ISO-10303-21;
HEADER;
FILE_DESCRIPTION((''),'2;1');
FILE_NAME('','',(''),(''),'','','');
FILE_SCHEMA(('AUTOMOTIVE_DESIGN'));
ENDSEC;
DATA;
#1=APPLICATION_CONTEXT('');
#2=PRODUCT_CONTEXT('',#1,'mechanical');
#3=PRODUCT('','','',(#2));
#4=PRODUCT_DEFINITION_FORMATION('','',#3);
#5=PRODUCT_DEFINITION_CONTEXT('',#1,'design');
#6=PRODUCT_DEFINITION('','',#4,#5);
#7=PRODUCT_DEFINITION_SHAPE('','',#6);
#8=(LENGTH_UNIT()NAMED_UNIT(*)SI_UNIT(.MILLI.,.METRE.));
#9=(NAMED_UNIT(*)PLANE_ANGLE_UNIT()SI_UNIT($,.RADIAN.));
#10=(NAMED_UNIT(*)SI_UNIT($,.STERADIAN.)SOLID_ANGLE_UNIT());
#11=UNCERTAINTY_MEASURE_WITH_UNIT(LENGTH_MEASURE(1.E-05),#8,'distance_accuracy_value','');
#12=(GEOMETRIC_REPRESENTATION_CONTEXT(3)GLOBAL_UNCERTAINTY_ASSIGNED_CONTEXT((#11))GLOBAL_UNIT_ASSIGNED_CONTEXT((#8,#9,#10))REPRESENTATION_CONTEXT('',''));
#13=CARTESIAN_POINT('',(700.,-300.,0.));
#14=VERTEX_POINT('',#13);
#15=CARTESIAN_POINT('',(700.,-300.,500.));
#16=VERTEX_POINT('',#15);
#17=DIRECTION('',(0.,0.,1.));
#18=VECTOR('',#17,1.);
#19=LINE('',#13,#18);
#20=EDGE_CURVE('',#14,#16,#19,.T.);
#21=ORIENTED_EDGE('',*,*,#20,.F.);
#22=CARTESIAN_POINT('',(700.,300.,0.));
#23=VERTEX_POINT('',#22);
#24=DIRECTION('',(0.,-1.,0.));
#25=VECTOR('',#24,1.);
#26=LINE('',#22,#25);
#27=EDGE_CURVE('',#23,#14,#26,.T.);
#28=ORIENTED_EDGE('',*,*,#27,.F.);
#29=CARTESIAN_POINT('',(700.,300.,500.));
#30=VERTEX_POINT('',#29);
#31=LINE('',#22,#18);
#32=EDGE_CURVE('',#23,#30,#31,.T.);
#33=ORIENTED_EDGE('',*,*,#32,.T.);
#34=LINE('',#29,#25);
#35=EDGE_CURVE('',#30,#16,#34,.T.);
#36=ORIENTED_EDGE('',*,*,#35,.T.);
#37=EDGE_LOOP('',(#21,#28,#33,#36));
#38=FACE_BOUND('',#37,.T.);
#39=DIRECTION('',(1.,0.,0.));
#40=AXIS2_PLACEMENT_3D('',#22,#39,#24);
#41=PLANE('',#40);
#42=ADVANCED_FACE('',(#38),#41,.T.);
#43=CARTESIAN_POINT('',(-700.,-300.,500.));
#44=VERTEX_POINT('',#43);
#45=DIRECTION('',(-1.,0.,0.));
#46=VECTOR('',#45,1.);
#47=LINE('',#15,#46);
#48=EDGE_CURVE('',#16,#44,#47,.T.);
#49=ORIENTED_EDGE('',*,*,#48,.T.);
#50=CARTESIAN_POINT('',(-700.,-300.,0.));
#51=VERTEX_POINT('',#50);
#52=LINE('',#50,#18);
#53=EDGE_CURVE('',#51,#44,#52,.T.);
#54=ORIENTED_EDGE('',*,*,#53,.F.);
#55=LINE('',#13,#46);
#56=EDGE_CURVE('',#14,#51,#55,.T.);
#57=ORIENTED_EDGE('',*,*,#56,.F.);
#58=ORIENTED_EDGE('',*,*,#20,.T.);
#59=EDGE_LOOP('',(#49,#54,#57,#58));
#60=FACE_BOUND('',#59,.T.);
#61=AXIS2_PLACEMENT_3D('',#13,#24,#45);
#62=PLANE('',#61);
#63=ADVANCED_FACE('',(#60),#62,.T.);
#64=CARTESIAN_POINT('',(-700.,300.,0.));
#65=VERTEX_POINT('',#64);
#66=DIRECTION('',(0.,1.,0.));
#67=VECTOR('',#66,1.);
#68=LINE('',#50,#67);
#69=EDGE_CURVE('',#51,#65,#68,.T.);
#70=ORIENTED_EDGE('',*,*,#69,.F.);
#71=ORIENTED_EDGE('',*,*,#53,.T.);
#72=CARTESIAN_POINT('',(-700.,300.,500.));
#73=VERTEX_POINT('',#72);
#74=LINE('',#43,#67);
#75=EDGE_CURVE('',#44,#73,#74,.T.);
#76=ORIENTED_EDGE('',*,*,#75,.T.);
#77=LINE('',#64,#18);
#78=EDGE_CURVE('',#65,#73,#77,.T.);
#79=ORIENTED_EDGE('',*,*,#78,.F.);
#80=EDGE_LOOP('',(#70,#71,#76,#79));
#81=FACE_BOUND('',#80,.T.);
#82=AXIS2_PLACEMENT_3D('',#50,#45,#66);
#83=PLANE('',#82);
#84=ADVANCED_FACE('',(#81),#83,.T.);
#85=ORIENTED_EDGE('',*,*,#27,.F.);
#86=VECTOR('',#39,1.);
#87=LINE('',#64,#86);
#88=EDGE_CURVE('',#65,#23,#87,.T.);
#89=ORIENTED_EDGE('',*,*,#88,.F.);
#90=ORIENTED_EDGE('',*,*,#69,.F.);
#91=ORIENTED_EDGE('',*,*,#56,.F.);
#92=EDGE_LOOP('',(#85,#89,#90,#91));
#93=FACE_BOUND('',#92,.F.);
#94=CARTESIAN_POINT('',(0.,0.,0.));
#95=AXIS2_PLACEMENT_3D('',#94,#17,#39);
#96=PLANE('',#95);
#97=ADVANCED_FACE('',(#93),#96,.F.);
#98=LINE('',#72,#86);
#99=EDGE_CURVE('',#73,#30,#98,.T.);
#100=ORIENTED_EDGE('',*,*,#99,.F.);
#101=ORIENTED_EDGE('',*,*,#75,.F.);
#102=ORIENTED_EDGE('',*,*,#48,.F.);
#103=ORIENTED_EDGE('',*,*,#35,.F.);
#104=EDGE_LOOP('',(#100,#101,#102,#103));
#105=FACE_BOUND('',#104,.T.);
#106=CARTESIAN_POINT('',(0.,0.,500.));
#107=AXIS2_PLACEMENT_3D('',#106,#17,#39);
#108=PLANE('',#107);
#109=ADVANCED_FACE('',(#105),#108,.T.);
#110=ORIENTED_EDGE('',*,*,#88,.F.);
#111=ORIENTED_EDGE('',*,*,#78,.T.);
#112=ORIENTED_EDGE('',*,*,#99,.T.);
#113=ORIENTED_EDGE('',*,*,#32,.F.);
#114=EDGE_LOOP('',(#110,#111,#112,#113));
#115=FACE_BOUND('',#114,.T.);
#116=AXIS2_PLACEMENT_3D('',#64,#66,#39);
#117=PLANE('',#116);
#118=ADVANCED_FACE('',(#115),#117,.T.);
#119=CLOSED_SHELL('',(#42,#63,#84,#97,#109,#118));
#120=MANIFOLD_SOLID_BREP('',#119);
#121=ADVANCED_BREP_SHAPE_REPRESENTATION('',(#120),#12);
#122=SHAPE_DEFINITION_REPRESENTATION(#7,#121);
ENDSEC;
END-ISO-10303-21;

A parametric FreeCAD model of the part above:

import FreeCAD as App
import Part
import Sketcher
from FreeCAD import Vector
Q = App.Units.Quantity

doc = App.newDocument("Part")
body = doc.addObject("PartDesign::Body", "Body")

sketch1 = body.newObject("Sketcher::SketchObject", "Sketch")
sketch1.AttachmentSupport = (doc.getObject("XY_Plane"), [""])
sketch1.MapMode = "FlatFace"
sketch1.addGeometry([
    Part.LineSegment(Vector(700, 300, 0), Vector(-700, 300, 0)),
    Part.LineSegment(Vector(-700, 300, 0), Vector(-700, -300, 0)),
    Part.LineSegment(Vector(-700, -300, 0), Vector(700, -300, 0)),
    Part.LineSegment(Vector(700, -300, 0), Vector(700, 300, 0)),
], False)
sketch1.addConstraint([
    Sketcher.Constraint("Coincident", 0, 2, 1, 1),
    Sketcher.Constraint("Coincident", 1, 2, 2, 1),
    Sketcher.Constraint("Coincident", 2, 2, 3, 1),
    Sketcher.Constraint("Coincident", 3, 2, 0, 1),
    Sketcher.Constraint("Horizontal", 0),
    Sketcher.Constraint("Vertical", 1),
    Sketcher.Constraint("Horizontal", 2),
    Sketcher.Constraint("Vertical", 3),
    Sketcher.Constraint("Symmetric", 0, 2, 2, 2, -1, 1),
    Sketcher.Constraint("DistanceX", 0, 2, 0, 1, Q("1400 mm")),
    Sketcher.Constraint("DistanceY", 1, 2, 1, 1, Q("600 mm")),
])
pad1 = body.newObject("PartDesign::Pad", "Pad")
pad1.Profile = sketch1
pad1.Length = 500

doc.recompute()
